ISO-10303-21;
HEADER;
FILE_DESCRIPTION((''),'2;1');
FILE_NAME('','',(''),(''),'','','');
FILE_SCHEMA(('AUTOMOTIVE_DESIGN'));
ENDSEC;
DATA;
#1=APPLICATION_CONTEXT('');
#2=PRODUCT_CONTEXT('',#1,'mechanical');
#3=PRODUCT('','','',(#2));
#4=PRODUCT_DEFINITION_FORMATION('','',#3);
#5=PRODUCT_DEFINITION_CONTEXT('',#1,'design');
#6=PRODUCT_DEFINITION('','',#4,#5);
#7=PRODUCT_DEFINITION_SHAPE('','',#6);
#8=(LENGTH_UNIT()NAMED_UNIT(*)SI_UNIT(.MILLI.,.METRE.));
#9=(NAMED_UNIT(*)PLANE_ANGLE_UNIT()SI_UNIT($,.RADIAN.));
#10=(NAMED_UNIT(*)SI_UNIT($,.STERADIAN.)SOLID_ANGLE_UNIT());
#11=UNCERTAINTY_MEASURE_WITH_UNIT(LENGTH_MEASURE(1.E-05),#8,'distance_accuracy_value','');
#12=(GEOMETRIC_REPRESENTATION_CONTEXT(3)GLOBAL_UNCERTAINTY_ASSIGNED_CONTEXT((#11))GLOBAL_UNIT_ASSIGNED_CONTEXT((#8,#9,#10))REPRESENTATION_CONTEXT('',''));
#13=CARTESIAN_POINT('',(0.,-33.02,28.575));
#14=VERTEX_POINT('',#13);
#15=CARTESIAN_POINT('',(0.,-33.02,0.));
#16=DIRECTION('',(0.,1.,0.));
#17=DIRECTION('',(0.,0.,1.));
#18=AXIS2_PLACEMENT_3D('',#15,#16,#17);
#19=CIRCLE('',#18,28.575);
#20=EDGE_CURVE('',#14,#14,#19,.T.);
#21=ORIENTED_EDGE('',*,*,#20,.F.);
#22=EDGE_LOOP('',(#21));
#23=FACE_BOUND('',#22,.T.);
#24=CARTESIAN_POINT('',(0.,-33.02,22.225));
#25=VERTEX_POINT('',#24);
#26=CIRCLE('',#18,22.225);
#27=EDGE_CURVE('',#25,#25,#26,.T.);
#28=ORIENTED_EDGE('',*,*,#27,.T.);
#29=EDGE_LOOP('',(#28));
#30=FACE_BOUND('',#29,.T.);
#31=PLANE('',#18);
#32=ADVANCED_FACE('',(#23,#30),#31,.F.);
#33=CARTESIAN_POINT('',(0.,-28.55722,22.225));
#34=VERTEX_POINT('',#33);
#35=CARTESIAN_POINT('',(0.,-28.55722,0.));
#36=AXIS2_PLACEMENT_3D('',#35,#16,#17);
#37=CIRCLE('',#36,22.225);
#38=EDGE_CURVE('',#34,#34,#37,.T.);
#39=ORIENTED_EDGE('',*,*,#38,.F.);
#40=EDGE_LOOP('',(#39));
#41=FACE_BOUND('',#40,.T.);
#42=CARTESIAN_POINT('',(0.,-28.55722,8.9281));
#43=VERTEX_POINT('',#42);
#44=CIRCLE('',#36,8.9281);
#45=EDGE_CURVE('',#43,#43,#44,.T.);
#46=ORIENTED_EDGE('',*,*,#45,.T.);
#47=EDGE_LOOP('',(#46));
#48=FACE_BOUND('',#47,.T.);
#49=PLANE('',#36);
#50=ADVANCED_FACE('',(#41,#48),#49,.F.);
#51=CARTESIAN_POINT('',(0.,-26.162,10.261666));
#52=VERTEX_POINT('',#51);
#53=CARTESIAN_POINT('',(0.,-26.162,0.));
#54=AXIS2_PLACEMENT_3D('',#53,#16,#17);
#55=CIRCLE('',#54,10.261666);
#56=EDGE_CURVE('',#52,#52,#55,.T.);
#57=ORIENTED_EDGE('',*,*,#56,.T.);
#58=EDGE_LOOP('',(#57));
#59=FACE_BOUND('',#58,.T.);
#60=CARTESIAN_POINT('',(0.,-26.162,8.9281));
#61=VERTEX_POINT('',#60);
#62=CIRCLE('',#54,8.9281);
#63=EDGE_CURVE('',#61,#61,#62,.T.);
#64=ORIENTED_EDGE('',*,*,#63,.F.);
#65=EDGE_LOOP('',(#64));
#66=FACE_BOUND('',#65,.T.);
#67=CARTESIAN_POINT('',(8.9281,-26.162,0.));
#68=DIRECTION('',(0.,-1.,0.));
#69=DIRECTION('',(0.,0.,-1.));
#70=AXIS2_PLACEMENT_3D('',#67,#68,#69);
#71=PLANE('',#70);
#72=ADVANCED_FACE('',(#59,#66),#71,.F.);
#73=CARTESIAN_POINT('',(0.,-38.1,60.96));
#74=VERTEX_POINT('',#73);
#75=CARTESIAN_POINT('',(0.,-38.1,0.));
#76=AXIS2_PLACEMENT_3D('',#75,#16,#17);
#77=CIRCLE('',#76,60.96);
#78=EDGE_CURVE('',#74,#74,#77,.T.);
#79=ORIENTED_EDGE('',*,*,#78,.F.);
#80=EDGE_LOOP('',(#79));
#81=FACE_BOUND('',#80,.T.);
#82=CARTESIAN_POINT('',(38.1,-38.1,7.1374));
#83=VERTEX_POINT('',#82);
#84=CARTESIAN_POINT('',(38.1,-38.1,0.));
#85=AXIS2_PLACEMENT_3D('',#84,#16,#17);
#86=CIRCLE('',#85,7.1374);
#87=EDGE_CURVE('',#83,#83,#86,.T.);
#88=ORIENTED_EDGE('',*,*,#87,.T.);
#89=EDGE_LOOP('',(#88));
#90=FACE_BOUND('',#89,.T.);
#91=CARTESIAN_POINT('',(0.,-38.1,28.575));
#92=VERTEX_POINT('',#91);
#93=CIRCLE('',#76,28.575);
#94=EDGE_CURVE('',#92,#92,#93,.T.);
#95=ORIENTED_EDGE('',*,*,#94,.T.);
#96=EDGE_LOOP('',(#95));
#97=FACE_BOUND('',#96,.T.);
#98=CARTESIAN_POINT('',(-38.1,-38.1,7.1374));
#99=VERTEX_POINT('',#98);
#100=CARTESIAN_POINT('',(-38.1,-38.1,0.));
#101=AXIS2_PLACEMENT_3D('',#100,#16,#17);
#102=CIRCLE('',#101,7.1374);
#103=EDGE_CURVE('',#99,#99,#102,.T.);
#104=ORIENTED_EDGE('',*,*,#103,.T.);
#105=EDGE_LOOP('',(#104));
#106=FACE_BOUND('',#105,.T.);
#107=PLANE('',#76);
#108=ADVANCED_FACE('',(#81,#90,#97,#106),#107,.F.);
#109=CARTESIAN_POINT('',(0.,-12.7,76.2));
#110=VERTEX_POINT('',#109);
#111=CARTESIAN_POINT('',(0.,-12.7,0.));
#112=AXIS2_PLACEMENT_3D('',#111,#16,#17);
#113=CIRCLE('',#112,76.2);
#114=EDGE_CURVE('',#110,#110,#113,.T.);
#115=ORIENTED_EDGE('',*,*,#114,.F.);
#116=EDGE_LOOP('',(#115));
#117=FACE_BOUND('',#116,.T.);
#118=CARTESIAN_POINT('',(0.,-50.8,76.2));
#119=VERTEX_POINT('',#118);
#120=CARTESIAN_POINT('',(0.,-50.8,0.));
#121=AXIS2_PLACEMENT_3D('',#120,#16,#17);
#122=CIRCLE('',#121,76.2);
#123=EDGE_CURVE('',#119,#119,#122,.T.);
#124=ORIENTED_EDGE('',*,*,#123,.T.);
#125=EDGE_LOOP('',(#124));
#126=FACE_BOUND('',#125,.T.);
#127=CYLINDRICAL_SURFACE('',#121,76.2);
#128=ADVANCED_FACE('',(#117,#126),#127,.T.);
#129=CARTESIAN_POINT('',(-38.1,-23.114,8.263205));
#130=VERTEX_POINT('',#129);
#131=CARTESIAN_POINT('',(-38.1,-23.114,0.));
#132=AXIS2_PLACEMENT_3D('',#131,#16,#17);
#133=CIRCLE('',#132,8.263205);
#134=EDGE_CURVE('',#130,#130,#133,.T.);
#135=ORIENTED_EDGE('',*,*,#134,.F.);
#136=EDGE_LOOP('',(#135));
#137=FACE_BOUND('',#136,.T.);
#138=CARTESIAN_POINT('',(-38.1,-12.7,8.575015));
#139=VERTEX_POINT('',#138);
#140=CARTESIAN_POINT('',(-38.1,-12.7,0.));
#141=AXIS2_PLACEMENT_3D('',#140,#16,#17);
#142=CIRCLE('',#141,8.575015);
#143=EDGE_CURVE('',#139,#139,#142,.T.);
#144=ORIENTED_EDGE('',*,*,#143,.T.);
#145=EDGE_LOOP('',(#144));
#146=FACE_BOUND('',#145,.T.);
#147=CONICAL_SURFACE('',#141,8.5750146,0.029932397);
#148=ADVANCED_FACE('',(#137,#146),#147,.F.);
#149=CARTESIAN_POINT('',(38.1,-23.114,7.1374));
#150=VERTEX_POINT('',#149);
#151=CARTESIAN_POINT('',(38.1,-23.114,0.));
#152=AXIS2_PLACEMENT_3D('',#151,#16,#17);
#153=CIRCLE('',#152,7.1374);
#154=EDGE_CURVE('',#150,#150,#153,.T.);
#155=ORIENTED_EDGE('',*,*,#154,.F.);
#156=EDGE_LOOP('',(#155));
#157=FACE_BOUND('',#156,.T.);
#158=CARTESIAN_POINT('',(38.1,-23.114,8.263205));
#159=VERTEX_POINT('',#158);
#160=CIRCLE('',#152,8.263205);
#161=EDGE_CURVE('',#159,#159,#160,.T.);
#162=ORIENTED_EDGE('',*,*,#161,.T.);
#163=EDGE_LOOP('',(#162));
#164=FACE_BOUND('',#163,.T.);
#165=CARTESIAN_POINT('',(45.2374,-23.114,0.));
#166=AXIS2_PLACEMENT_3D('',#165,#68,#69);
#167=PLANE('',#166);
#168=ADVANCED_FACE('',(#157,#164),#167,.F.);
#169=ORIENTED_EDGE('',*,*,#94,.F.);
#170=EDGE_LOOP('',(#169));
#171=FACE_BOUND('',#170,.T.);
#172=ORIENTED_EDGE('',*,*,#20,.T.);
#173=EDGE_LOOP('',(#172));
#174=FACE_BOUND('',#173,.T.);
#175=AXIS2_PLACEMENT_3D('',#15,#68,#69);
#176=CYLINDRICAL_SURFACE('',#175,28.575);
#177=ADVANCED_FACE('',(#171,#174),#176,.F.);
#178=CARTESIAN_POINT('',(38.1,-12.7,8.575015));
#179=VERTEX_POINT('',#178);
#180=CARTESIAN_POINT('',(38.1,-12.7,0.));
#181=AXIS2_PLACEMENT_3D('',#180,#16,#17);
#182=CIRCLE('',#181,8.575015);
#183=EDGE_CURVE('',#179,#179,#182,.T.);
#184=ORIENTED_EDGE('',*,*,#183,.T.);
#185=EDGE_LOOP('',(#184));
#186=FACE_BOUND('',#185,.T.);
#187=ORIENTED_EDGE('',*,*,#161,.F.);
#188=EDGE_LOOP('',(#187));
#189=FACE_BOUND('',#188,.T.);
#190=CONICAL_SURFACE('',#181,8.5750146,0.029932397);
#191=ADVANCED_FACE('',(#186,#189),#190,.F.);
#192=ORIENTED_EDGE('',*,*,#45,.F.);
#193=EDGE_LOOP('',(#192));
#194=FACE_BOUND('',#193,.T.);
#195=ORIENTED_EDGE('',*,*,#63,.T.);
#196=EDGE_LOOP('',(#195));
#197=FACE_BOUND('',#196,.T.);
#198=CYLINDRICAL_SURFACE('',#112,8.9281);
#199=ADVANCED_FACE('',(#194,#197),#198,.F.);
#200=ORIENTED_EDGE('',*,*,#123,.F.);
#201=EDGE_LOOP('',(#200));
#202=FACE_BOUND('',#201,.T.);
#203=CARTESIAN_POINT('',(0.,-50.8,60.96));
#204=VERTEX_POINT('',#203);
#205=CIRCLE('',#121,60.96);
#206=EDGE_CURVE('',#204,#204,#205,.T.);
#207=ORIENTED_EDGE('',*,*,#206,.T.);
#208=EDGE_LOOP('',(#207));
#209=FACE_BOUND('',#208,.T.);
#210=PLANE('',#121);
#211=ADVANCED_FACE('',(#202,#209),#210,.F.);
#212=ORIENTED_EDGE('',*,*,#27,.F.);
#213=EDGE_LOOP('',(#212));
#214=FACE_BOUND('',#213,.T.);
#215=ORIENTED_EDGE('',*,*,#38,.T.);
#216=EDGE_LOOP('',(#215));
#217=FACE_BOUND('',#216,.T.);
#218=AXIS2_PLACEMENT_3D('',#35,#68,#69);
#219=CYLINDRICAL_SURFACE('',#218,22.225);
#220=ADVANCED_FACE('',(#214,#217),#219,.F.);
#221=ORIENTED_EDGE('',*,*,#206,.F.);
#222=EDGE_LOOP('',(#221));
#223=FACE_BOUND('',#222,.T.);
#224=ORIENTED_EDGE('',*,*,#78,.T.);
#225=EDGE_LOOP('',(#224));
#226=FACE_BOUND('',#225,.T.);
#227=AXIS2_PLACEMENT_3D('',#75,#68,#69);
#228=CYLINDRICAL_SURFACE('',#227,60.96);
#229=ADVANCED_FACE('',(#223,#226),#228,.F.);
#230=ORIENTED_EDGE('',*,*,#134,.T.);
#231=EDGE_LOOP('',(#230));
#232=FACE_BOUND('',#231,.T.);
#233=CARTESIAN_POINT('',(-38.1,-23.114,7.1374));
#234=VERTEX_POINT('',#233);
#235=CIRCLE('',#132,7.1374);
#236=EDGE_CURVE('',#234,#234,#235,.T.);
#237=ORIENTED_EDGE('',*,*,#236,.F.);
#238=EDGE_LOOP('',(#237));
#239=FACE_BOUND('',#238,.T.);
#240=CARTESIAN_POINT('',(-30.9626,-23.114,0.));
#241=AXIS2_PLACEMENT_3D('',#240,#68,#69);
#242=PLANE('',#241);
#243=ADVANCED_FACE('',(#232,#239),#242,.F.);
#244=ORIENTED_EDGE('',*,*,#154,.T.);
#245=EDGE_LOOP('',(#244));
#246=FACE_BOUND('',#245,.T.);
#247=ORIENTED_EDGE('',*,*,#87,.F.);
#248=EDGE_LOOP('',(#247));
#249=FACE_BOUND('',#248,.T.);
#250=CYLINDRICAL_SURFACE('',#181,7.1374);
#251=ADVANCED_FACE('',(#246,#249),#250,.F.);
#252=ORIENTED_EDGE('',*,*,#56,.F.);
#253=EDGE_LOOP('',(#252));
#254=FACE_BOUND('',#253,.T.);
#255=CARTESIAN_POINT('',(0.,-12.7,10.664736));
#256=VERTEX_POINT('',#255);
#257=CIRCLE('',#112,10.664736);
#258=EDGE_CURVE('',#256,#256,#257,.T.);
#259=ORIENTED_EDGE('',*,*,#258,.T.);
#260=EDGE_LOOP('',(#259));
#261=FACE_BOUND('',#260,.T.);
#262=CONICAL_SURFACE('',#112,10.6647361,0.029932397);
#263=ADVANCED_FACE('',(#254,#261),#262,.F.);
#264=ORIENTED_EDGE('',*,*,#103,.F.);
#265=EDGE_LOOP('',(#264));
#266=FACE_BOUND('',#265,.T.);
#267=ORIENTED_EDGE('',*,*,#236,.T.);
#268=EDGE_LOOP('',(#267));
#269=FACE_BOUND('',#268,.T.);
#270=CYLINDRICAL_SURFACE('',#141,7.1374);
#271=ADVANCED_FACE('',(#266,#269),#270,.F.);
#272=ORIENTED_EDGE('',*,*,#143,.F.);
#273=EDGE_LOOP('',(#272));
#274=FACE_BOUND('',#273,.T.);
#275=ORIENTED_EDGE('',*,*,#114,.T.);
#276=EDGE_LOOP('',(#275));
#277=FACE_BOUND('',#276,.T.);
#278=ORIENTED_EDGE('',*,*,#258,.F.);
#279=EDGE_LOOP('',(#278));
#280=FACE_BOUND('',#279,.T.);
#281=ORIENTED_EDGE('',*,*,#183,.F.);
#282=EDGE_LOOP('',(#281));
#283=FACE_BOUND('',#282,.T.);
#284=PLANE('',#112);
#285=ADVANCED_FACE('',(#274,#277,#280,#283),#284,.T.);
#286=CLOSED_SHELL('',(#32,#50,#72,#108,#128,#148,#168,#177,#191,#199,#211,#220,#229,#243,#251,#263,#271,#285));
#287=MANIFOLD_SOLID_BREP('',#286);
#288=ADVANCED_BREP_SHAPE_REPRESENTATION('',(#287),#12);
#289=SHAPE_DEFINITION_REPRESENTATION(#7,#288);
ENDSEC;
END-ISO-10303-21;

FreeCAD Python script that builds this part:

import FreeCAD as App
import Part
import Sketcher

V = App.Vector
Q = App.Units.Quantity


def add_polygon(sketch, points):
    """Adds a closed chain of lines whose ends are joined by coincident constraints."""
    first, n = sketch.GeometryCount, len(points)
    for a, b in zip(points, points[1:] + points[:1]):
        sketch.addGeometry(Part.LineSegment(App.Vector(*a, 0), App.Vector(*b, 0)), False)
    for i in range(n):
        sketch.addConstraint(Sketcher.Constraint("Coincident", first + i, 2, first + (i + 1) % n, 1))

doc = App.newDocument("Part")
body = doc.addObject("PartDesign::Body", "Body")

# Sketch on XZ plane
sketch1 = doc.addObject("Sketcher::SketchObject", "Sketch")
body.addObject(sketch1)
sketch1.AttachmentSupport = (doc.XZ_Plane, [""])
sketch1.MapMode = "FlatFace"
sketch1.addGeometry(Part.Circle(V(0, 0, 0), V(0, 0, 1), 76), False)
sketch1.addConstraint(Sketcher.Constraint("Coincident", 0, 3, -1, 1))
sketch1.addConstraint(Sketcher.Constraint("Diameter", 0, Q("6 in")))
pad1 = doc.addObject("PartDesign::Pad", "Pad")
body.addObject(pad1)
pad1.Profile = sketch1
pad1.Length = Q("2 in")

# Sketch on XZ plane
sketch2 = doc.addObject("Sketcher::SketchObject", "Sketch001")
body.addObject(sketch2)
sketch2.AttachmentSupport = (doc.XZ_Plane, [""])
sketch2.MapMode = "FlatFace"
sketch2.AttachmentOffset = App.Placement(V(0, 0, 2 * 25.4), App.Rotation())
sketch2.addGeometry(Part.Circle(V(0, 0, 0), V(0, 0, 1), 29), False)
sketch2.addConstraint(Sketcher.Constraint("Coincident", 0, 3, -1, 1))
sketch2.addConstraint(Sketcher.Constraint("Diameter", 0, Q("2.25 in")))
pocket1 = doc.addObject("PartDesign::Pocket", "Pocket")
body.addObject(pocket1)
pocket1.Profile = sketch2
pocket1.Length = Q("0.7 in")

# Sketch on XZ plane
sketch3 = doc.addObject("Sketcher::SketchObject", "Sketch002")
body.addObject(sketch3)
sketch3.AttachmentSupport = (doc.XZ_Plane, [""])
sketch3.MapMode = "FlatFace"
sketch3.AttachmentOffset = App.Placement(V(0, 0, 1.3 * 25.4), App.Rotation())
sketch3.addGeometry(Part.Circle(V(0, 0, 0), V(0, 0, 1), 22), False)
sketch3.addConstraint(Sketcher.Constraint("Coincident", 0, 3, -1, 1))
sketch3.addConstraint(Sketcher.Constraint("Diameter", 0, Q("1.75 in")))
pocket2 = doc.addObject("PartDesign::Pocket", "Pocket001")
body.addObject(pocket2)
pocket2.Profile = sketch3
pocket2.Length = Q("0.1757 in")

# Sketch on XZ plane
sketch4 = doc.addObject("Sketcher::SketchObject", "Sketch003")
body.addObject(sketch4)
sketch4.AttachmentSupport = (doc.XZ_Plane, [""])
sketch4.MapMode = "FlatFace"
sketch4.addGeometry(Part.Circle(V(0, 0, 0), V(0, 0, 1), 76), False)
sketch4.addConstraint(Sketcher.Constraint("Coincident", 0, 3, -1, 1))
sketch4.addConstraint(Sketcher.Constraint("Diameter", 0, Q("6 in")))
pocket3 = doc.addObject("PartDesign::Pocket", "Pocket002")
body.addObject(pocket3)
pocket3.Profile = sketch4
pocket3.Length = Q("0.5 in")
pocket3.Reversed = True

# Sketch on XZ plane
sketch5 = doc.addObject("Sketcher::SketchObject", "Sketch004")
body.addObject(sketch5)
sketch5.AttachmentSupport = (doc.XZ_Plane, [""])
sketch5.MapMode = "FlatFace"
sketch5.AttachmentOffset = App.Placement(V(0, 0, 2 * 25.4), App.Rotation())
sketch5.addGeometry(Part.Circle(V(0, 0, 0), V(0, 0, 1), 61), False)
sketch5.addConstraint(Sketcher.Constraint("Coincident", 0, 3, -1, 1))
sketch5.addConstraint(Sketcher.Constraint("Diameter", 0, Q("4.8 in")))
pocket4 = doc.addObject("PartDesign::Pocket", "Pocket003")
body.addObject(pocket4)
pocket4.Profile = sketch5
pocket4.Length = Q("0.5 in")

# Sketch on YZ plane
sketch6 = doc.addObject("Sketcher::SketchObject", "Sketch005")
body.addObject(sketch6)
sketch6.AttachmentSupport = (doc.YZ_Plane, [""])
sketch6.MapMode = "FlatFace"
add_polygon(sketch6, [(-50.8, 0), (-12.7, 0), (-12.7, 10.7), (-26.2, 10.3), (-26.2, 8.9), (-50.8, 8.9)])  # lines 0-5
sketch6.addConstraint(Sketcher.Constraint("Horizontal", 0))
sketch6.addConstraint(Sketcher.Constraint("Vertical", 1))
sketch6.addConstraint(Sketcher.Constraint("Vertical", 3))
sketch6.addConstraint(Sketcher.Constraint("Horizontal", 4))
sketch6.addConstraint(Sketcher.Constraint("Vertical", 5))
sketch6.addConstraint(Sketcher.Constraint("PointOnObject", 0, 2, -1))
sketch6.addConstraint(Sketcher.Constraint("DistanceX", 0, 1, 0, 2, Q("1.5 in")))
sketch6.addConstraint(Sketcher.Constraint("DistanceX", 4, 2, -1, 1, Q("2 in")))
sketch6.addConstraint(Sketcher.Constraint("DistanceX", 4, 2, 4, 1, Q("0.97 in")))
sketch6.addConstraint(Sketcher.Constraint("DistanceY", 5, 2, 5, 1, Q("0.3515 in")))
sketch6.addConstraint(Sketcher.Constraint("DistanceY", 1, 1, 1, 2, 10.664736))
sketch6.addConstraint(Sketcher.Constraint("DistanceY", 3, 2, 3, 1, 1.333566))
groove = doc.addObject("PartDesign::Groove", "Groove")
body.addObject(groove)
groove.Profile = sketch6
groove.ReferenceAxis = (sketch6, ["H_Axis"])
groove.Angle = 360

# Sketch on YZ plane
sketch7 = doc.addObject("Sketcher::SketchObject", "Sketch006")
body.addObject(sketch7)
sketch7.AttachmentSupport = (doc.YZ_Plane, [""])
sketch7.MapMode = "FlatFace"
sketch7.AttachmentOffset = App.Placement(V(0, 0, -1.5 * 25.4), App.Rotation())
add_polygon(sketch7, [(-50.8, 0), (-12.7, 0), (-12.7, 8.6), (-23.1, 8.3), (-23.1, 7.1), (-50.8, 7.1)])  # lines 0-5
sketch7.addConstraint(Sketcher.Constraint("Horizontal", 0))
sketch7.addConstraint(Sketcher.Constraint("Vertical", 1))
sketch7.addConstraint(Sketcher.Constraint("Vertical", 3))
sketch7.addConstraint(Sketcher.Constraint("Horizontal", 4))
sketch7.addConstraint(Sketcher.Constraint("Vertical", 5))
sketch7.addConstraint(Sketcher.Constraint("PointOnObject", 0, 2, -1))
sketch7.addConstraint(Sketcher.Constraint("DistanceX", 0, 1, 0, 2, Q("1.5 in")))
sketch7.addConstraint(Sketcher.Constraint("DistanceX", 4, 2, -1, 1, Q("2 in")))
sketch7.addConstraint(Sketcher.Constraint("DistanceX", 4, 2, 4, 1, Q("1.09 in")))
sketch7.addConstraint(Sketcher.Constraint("DistanceY", 5, 2, 5, 1, Q("0.281 in")))
sketch7.addConstraint(Sketcher.Constraint("DistanceY", 1, 1, 1, 2, 8.575015))
sketch7.addConstraint(Sketcher.Constraint("DistanceY", 3, 2, 3, 1, 1.125805))
groove2 = doc.addObject("PartDesign::Groove", "Groove001")
body.addObject(groove2)
groove2.Profile = sketch7
groove2.ReferenceAxis = (sketch7, ["H_Axis"])
groove2.Angle = 360
doc.recompute()

linearpattern = doc.addObject("PartDesign::LinearPattern", "LinearPattern")
body.addObject(linearpattern)
linearpattern.Originals = [groove2]
linearpattern.Direction = (doc.X_Axis, [""])
linearpattern.Mode = "offset"
linearpattern.Offset = Q("3 in")
linearpattern.Occurrences = 2
body.Tip = linearpattern

doc.recompute()
